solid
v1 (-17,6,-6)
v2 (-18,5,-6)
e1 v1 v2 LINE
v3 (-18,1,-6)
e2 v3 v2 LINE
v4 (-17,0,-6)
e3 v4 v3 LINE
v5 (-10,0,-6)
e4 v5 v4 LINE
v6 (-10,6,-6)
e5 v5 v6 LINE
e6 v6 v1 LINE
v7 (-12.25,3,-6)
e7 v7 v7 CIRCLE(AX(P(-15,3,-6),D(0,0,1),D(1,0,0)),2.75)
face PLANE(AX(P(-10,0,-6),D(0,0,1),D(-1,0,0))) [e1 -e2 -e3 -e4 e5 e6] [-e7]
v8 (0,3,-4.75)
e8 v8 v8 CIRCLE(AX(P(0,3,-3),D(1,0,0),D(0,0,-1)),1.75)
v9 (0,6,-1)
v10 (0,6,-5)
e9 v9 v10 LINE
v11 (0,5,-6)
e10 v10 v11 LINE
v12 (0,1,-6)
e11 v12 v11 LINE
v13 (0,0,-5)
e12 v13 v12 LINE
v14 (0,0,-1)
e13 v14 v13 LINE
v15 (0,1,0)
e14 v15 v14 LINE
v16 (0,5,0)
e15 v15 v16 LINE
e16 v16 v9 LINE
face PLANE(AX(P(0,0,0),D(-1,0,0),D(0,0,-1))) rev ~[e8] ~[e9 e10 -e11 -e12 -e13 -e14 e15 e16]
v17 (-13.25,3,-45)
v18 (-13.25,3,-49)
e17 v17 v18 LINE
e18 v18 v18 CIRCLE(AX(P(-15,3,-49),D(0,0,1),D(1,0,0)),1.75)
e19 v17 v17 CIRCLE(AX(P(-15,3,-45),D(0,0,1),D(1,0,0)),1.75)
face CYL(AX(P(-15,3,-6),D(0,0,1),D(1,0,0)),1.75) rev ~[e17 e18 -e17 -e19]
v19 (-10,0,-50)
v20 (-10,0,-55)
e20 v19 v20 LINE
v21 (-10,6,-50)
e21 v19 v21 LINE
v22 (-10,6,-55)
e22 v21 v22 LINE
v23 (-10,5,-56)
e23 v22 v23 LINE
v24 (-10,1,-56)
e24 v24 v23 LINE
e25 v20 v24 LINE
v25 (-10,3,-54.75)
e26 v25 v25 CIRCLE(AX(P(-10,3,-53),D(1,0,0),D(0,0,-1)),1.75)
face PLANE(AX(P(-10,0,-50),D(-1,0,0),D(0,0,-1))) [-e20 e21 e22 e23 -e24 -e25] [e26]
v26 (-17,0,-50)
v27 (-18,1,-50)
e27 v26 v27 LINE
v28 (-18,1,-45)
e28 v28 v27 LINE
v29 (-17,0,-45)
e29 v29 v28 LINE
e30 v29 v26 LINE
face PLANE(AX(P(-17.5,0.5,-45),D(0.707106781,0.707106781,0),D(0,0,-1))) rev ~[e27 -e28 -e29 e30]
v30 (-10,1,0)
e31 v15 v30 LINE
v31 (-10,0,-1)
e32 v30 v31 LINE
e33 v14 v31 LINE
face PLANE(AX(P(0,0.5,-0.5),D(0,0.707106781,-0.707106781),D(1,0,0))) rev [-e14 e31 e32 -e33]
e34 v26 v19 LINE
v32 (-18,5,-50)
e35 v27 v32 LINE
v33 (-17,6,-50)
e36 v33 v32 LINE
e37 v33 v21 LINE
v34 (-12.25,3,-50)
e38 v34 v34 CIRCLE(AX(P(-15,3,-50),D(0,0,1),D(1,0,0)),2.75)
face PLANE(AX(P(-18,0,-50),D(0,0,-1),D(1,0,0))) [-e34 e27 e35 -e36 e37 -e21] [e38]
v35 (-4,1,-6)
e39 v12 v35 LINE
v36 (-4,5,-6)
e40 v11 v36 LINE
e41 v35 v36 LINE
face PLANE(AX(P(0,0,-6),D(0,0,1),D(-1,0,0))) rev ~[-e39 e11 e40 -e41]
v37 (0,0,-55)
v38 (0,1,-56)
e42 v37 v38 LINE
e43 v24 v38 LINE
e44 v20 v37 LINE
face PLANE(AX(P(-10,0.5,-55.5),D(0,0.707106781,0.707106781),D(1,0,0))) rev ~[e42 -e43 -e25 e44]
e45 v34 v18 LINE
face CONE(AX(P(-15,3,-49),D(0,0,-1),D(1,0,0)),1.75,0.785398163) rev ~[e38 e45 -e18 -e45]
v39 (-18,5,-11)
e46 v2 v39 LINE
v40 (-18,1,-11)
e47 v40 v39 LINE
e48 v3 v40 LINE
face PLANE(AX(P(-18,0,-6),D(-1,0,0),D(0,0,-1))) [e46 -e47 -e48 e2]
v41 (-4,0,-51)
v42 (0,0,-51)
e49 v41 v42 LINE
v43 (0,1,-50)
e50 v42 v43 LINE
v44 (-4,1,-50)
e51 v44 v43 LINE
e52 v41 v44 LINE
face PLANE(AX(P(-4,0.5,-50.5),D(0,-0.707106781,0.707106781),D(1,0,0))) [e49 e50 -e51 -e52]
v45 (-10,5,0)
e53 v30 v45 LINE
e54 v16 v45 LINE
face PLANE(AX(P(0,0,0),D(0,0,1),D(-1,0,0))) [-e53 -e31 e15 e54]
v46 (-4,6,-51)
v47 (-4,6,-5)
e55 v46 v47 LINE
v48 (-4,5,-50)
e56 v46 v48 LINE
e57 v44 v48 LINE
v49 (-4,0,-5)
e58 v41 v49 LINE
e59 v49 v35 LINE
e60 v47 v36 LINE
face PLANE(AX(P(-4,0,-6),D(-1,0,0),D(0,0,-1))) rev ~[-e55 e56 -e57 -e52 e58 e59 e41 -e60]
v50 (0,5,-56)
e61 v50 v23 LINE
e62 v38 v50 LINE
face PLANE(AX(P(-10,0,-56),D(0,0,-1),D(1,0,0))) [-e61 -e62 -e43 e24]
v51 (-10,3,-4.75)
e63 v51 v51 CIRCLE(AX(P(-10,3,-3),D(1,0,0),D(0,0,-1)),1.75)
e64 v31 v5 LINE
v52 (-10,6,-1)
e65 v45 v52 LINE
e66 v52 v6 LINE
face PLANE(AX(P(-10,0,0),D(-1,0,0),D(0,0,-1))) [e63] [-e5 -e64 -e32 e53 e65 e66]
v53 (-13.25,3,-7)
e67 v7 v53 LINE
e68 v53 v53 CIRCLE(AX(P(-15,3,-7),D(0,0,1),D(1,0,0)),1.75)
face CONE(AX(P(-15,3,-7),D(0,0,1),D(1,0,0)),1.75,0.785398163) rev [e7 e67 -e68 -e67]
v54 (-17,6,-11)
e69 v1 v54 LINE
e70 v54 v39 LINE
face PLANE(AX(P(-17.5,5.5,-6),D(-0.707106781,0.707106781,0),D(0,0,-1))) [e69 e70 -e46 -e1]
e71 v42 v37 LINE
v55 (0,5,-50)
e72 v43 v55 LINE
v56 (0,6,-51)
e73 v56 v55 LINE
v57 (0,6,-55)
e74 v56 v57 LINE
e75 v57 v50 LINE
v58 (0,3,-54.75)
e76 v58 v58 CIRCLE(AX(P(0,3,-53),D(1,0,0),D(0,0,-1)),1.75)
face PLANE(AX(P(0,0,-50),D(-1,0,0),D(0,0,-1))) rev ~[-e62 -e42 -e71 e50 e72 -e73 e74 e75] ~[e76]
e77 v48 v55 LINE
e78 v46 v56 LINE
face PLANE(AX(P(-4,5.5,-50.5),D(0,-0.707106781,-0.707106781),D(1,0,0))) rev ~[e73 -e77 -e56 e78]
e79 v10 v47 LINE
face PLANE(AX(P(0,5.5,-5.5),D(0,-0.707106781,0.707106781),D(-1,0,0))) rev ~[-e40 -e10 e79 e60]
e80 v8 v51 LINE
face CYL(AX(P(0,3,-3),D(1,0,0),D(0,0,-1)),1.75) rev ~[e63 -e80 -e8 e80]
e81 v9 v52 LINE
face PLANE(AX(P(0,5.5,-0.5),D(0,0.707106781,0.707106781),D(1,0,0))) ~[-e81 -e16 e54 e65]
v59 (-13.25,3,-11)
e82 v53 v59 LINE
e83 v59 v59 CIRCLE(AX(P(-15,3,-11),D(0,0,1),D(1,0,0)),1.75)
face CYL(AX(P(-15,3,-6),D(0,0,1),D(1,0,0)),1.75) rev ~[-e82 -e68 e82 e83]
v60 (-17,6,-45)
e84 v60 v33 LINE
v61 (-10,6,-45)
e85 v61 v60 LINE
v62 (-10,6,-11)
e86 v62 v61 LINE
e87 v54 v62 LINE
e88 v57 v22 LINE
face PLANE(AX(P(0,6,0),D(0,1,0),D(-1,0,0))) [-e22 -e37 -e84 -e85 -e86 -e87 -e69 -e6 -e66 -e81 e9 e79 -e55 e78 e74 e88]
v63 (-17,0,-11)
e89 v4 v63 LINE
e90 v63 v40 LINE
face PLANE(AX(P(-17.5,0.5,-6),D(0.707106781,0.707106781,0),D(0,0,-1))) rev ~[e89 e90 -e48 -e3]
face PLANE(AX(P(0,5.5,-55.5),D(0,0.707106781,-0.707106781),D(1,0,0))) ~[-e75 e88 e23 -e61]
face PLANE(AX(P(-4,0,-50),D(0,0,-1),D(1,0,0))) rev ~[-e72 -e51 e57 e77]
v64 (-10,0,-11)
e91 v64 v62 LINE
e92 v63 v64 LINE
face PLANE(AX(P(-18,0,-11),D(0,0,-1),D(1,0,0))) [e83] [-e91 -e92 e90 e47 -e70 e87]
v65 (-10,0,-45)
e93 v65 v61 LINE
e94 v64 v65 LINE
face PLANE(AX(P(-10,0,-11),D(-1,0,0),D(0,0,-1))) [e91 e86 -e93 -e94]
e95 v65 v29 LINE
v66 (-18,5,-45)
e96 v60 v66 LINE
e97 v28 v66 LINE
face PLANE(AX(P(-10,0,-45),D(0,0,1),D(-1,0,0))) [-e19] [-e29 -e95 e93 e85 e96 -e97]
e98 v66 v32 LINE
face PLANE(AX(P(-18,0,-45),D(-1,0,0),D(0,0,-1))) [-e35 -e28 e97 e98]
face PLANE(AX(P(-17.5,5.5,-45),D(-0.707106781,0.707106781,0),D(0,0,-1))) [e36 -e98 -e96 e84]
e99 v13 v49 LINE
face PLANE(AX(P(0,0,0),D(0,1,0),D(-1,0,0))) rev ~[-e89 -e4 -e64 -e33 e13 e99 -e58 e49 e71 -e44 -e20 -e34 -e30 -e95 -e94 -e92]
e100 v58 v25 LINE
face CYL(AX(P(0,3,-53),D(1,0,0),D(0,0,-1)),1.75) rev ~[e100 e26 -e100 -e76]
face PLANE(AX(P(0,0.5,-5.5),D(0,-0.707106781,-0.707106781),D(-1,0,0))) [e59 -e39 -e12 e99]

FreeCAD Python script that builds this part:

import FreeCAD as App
import Part
import Sketcher

V = App.Vector


def edges_at(feature, points):
    """Names of the edges that pass closest to the given points."""
    edges = feature.Shape.Edges
    near = lambda p: min(range(len(edges)), key=lambda i: edges[i].distToShape(Part.Vertex(*p))[0])
    return sorted({f"Edge{near(p) + 1}" for p in points})

doc = App.newDocument("Part")
body = doc.addObject("PartDesign::Body", "Body")

# Sketch on XZ plane
sketch1 = body.newObject("Sketcher::SketchObject", "Sketch")
sketch1.AttachmentSupport = (doc.getObject("XZ_Plane"), [""])
sketch1.MapMode = "FlatFace"
sketch1.addGeometry(Part.LineSegment(V(-10, 0, 0), V(0, 0, 0)), False)
sketch1.addGeometry(Part.LineSegment(V(0, 0, 0), V(0, -6, 0)), False)
sketch1.addGeometry(Part.LineSegment(V(0, -6, 0), V(-4, -6, 0)), False)
sketch1.addGeometry(Part.LineSegment(V(-4, -6, 0), V(-4, -50, 0)), False)
sketch1.addGeometry(Part.LineSegment(V(-4, -50, 0), V(0, -50, 0)), False)
sketch1.addGeometry(Part.LineSegment(V(0, -50, 0), V(0, -56, 0)), False)
sketch1.addGeometry(Part.LineSegment(V(0, -56, 0), V(-10, -56, 0)), False)
sketch1.addGeometry(Part.LineSegment(V(-10, -56, 0), V(-10, -50, 0)), False)
sketch1.addGeometry(Part.LineSegment(V(-10, -50, 0), V(-18, -50, 0)), False)
sketch1.addGeometry(Part.LineSegment(V(-18, -50, 0), V(-18, -45, 0)), False)
sketch1.addGeometry(Part.LineSegment(V(-18, -45, 0), V(-10, -45, 0)), False)
sketch1.addGeometry(Part.LineSegment(V(-10, -45, 0), V(-10, -11, 0)), False)
sketch1.addGeometry(Part.LineSegment(V(-10, -11, 0), V(-18, -11, 0)), False)
sketch1.addGeometry(Part.LineSegment(V(-18, -11, 0), V(-18, -6, 0)), False)
sketch1.addGeometry(Part.LineSegment(V(-18, -6, 0), V(-10, -6, 0)), False)
sketch1.addGeometry(Part.LineSegment(V(-10, -6, 0), V(-10, 0, 0)), False)
sketch1.addConstraint(Sketcher.Constraint("Coincident", 0, 2, 1, 1))
sketch1.addConstraint(Sketcher.Constraint("Coincident", 1, 2, 2, 1))
sketch1.addConstraint(Sketcher.Constraint("Coincident", 2, 2, 3, 1))
sketch1.addConstraint(Sketcher.Constraint("Coincident", 3, 2, 4, 1))
sketch1.addConstraint(Sketcher.Constraint("Coincident", 4, 2, 5, 1))
sketch1.addConstraint(Sketcher.Constraint("Coincident", 5, 2, 6, 1))
sketch1.addConstraint(Sketcher.Constraint("Coincident", 6, 2, 7, 1))
sketch1.addConstraint(Sketcher.Constraint("Coincident", 7, 2, 8, 1))
sketch1.addConstraint(Sketcher.Constraint("Coincident", 8, 2, 9, 1))
sketch1.addConstraint(Sketcher.Constraint("Coincident", 9, 2, 10, 1))
sketch1.addConstraint(Sketcher.Constraint("Coincident", 10, 2, 11, 1))
sketch1.addConstraint(Sketcher.Constraint("Coincident", 11, 2, 12, 1))
sketch1.addConstraint(Sketcher.Constraint("Coincident", 12, 2, 13, 1))
sketch1.addConstraint(Sketcher.Constraint("Coincident", 13, 2, 14, 1))
sketch1.addConstraint(Sketcher.Constraint("Coincident", 14, 2, 15, 1))
sketch1.addConstraint(Sketcher.Constraint("Coincident", 15, 2, 0, 1))
sketch1.addConstraint(Sketcher.Constraint("Horizontal", 0))
sketch1.addConstraint(Sketcher.Constraint("Vertical", 1))
sketch1.addConstraint(Sketcher.Constraint("Horizontal", 2))
sketch1.addConstraint(Sketcher.Constraint("Vertical", 3))
sketch1.addConstraint(Sketcher.Constraint("Horizontal", 4))
sketch1.addConstraint(Sketcher.Constraint("Vertical", 5))
sketch1.addConstraint(Sketcher.Constraint("Horizontal", 6))
sketch1.addConstraint(Sketcher.Constraint("Vertical", 7))
sketch1.addConstraint(Sketcher.Constraint("Horizontal", 8))
sketch1.addConstraint(Sketcher.Constraint("Vertical", 9))
sketch1.addConstraint(Sketcher.Constraint("Horizontal", 10))
sketch1.addConstraint(Sketcher.Constraint("Vertical", 11))
sketch1.addConstraint(Sketcher.Constraint("Horizontal", 12))
sketch1.addConstraint(Sketcher.Constraint("Vertical", 13))
sketch1.addConstraint(Sketcher.Constraint("Horizontal", 14))
sketch1.addConstraint(Sketcher.Constraint("Vertical", 15))
sketch1.addConstraint(Sketcher.Constraint("Coincident", 0, 2, -1, 1))
sketch1.addConstraint(Sketcher.Constraint("PointOnObject", 4, 2, -2))
sketch1.addConstraint(Sketcher.Constraint("Horizontal", 4, 2, 7, 2))
sketch1.addConstraint(Sketcher.Constraint("Horizontal", 2, 2, 13, 2))
sketch1.addConstraint(Sketcher.Constraint("Vertical", 7, 2, 10, 2))
sketch1.addConstraint(Sketcher.Constraint("Vertical", 9, 2, 12, 2))
sketch1.addConstraint(Sketcher.Constraint("Vertical", 11, 2, 14, 2))
sketch1.addConstraint(Sketcher.Constraint("Equal", 1, 5))
sketch1.addConstraint(Sketcher.Constraint("Equal", 9, 13))
sketch1.addConstraint(Sketcher.Constraint("DistanceX", 2, 2, 2, 1, 4.0))
sketch1.addConstraint(Sketcher.Constraint("DistanceX", 8, 2, 8, 1, 8.0))
sketch1.addConstraint(Sketcher.Constraint("DistanceY", 1, 2, 1, 1, 6.0))
sketch1.addConstraint(Sketcher.Constraint("DistanceY", 9, 1, 9, 2, 5.0))
sketch1.addConstraint(Sketcher.Constraint("DistanceY", 11, 1, 11, 2, 34.0))
sketch1.addConstraint(Sketcher.Constraint("DistanceX", 6, 2, 3, 2, 6.0))
pad1 = body.newObject("PartDesign::Pad", "Pad")
pad1.Profile = sketch1
pad1.Length = 6
pad1.Reversed = True

# Sketch on YZ plane
sketch2 = body.newObject("Sketcher::SketchObject", "Sketch001")
sketch2.AttachmentSupport = (doc.getObject("YZ_Plane"), [""])
sketch2.MapMode = "FlatFace"
sketch2.addGeometry(Part.Circle(V(3, -3, 0), V(0, 0, 1), 1.8), False)
sketch2.addGeometry(Part.Circle(V(3, -53, 0), V(0, 0, 1), 1.8), False)
sketch2.addConstraint(Sketcher.Constraint("Equal", 0, 1))
sketch2.addConstraint(Sketcher.Constraint("Vertical", 0, 3, 1, 3))
sketch2.addConstraint(Sketcher.Constraint("Diameter", 0, 3.5))
sketch2.addConstraint(Sketcher.Constraint("DistanceX", -1, 1, 0, 3, 3.0))
sketch2.addConstraint(Sketcher.Constraint("DistanceY", 0, 3, -1, 1, 3.0))
sketch2.addConstraint(Sketcher.Constraint("DistanceY", 1, 3, -1, 1, 53.0))
pocket1 = body.newObject("PartDesign::Pocket", "Pocket")
pocket1.Profile = sketch2
pocket1.Type = "ThroughAll"
doc.recompute()

chamfer = body.newObject("PartDesign::Chamfer", "Chamfer")
chamfer.Base = (pocket1, edges_at(pocket1, [
    (-2, 6, -6),
    (-2, 0, -6),
    (-2, 0, -50),
    (-2, 6, -50),
    (-5, 0, -56),
    (-5, 6, -56),
    (-5, 6, 0),
    (-5, 0, 0),
]))
chamfer.Size = 1
doc.recompute()

chamfer2 = body.newObject("PartDesign::Chamfer", "Chamfer001")
chamfer2.Base = (chamfer, edges_at(chamfer, [
    (-18, 0, -47.5),
    (-18, 6, -47.5),
    (-18, 0, -8.5),
    (-18, 6, -8.5),
]))
chamfer2.Size = 1

# Sketch on XY plane
sketch3 = body.newObject("Sketcher::SketchObject", "Sketch002")
sketch3.AttachmentSupport = (doc.getObject("XY_Plane"), [""])
sketch3.MapMode = "FlatFace"
sketch3.AttachmentOffset = App.Placement(V(0, 0, -6), App.Rotation())
sketch3.addGeometry(Part.Circle(V(-15, 3, 0), V(0, 0, 1), 1.8), False)
sketch3.addConstraint(Sketcher.Constraint("Diameter", 0, 3.5))
sketch3.addConstraint(Sketcher.Constraint("DistanceX", 0, 3, -1, 1, 15.0))
sketch3.addConstraint(Sketcher.Constraint("DistanceY", -1, 1, 0, 3, 3.0))
pocket2 = body.newObject("PartDesign::Pocket", "Pocket001")
pocket2.Profile = sketch3
pocket2.Type = "ThroughAll"
doc.recompute()

chamfer3 = body.newObject("PartDesign::Chamfer", "Chamfer002")
chamfer3.Base = (pocket2, edges_at(pocket2, [(-16.75, 3, -6), (-16.75, 3, -50)]))
chamfer3.Size = 1

doc.recompute()
